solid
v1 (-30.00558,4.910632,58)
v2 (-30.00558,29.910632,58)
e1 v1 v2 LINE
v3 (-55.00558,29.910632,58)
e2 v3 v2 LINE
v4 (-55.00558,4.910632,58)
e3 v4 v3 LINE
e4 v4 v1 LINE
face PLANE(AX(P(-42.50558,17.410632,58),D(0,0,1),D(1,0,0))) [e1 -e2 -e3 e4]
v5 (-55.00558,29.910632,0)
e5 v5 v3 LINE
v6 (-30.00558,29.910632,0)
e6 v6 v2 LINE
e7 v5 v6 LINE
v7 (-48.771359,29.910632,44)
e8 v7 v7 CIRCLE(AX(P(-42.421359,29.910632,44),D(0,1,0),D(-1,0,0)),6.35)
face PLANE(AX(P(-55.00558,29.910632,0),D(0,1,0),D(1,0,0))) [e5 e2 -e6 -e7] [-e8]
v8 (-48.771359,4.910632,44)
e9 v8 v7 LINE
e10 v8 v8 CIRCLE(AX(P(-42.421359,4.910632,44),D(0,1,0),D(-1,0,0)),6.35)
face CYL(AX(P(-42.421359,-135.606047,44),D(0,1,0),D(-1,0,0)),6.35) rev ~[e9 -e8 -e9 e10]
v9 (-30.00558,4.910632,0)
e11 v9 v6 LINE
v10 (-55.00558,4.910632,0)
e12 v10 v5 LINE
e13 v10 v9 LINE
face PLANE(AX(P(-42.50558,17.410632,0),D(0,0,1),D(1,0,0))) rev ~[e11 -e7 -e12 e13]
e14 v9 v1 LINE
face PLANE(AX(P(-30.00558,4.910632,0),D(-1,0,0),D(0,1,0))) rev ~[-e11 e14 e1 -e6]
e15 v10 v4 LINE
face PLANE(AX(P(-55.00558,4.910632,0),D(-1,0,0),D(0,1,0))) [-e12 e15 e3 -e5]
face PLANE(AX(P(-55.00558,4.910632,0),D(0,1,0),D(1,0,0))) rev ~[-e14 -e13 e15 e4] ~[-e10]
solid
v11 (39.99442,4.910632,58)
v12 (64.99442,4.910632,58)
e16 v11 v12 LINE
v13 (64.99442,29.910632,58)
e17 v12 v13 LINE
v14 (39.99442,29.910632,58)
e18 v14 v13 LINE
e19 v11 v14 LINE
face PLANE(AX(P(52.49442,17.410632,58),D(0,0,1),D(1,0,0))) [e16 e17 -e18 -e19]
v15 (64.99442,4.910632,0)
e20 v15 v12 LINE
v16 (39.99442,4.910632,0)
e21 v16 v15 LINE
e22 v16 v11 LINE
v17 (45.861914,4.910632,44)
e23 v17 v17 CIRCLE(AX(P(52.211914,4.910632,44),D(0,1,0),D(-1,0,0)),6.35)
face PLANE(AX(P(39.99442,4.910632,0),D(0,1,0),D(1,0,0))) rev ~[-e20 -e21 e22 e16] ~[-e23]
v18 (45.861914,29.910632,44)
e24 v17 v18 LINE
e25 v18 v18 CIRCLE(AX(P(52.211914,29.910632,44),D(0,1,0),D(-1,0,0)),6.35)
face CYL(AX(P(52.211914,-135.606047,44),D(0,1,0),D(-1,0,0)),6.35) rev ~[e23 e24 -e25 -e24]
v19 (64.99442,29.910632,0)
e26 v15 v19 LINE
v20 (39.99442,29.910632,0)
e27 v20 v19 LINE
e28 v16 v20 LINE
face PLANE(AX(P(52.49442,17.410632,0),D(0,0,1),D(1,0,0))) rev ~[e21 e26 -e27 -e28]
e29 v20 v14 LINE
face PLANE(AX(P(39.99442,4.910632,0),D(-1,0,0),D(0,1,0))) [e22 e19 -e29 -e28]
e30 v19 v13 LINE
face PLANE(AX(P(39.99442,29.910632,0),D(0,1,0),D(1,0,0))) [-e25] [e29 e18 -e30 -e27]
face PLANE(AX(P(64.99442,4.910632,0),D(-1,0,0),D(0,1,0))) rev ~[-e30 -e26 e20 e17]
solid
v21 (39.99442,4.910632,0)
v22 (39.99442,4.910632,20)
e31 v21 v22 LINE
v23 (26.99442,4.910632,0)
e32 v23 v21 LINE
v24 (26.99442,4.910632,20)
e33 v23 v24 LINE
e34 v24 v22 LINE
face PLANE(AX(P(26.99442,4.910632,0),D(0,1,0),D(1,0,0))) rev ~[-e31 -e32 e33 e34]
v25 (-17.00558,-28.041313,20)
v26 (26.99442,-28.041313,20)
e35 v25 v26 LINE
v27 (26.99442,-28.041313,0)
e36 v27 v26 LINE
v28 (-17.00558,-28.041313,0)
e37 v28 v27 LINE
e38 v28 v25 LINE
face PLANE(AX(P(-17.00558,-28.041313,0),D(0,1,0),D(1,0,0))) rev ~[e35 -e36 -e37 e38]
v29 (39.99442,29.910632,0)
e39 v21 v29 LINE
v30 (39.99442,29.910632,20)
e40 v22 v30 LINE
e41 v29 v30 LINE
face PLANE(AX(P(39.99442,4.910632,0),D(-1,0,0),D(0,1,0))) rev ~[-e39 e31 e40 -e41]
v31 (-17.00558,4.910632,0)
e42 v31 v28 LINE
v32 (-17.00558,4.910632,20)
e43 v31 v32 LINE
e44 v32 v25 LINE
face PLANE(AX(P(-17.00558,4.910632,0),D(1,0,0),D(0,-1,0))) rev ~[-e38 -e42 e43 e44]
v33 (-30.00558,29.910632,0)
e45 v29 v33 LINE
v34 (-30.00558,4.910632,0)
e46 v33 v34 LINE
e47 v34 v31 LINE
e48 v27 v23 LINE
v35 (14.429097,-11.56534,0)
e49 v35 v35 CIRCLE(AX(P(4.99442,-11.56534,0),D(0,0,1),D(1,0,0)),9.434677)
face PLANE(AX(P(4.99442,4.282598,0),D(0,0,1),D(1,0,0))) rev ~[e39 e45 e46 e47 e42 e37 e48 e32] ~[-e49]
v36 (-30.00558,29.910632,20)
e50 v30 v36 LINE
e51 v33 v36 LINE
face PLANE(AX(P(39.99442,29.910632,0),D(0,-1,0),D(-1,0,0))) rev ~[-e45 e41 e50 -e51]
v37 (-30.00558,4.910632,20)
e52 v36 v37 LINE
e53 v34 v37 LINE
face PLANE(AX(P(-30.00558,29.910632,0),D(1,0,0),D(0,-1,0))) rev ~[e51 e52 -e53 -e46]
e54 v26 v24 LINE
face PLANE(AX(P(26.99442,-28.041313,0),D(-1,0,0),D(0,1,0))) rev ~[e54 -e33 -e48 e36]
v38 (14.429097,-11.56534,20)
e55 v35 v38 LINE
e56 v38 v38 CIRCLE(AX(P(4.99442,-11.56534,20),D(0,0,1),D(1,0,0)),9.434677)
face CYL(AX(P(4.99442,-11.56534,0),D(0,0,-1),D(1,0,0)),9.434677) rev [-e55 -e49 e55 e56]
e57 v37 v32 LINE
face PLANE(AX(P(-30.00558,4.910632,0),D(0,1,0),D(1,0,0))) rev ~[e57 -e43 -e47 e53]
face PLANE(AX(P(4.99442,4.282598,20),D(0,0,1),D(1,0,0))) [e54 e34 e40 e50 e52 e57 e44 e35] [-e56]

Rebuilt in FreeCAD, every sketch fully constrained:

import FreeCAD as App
import Part
import Sketcher

doc = App.newDocument("Part")
body = doc.addObject("PartDesign::Body", "Body")
body.AllowCompound = True

sketch1 = body.newObject("Sketcher::SketchObject", "Sketch")
sketch1.AttachmentSupport = (doc.getObject("XY_Plane"), [""])
sketch1.MapMode = "FlatFace"
sketch1.addGeometry([
    Part.LineSegment(App.Vector(-55, 30, 0), App.Vector(-55, 5, 0)),
    Part.LineSegment(App.Vector(-55, 5, 0), App.Vector(-30, 5, 0)),
    Part.LineSegment(App.Vector(-30, 5, 0), App.Vector(-30, 30, 0)),
    Part.LineSegment(App.Vector(-30, 30, 0), App.Vector(-55, 30, 0)),
    Part.LineSegment(App.Vector(40, 30, 0), App.Vector(40, 5, 0)),
    Part.LineSegment(App.Vector(40, 5, 0), App.Vector(65, 5, 0)),
    Part.LineSegment(App.Vector(65, 5, 0), App.Vector(65, 30, 0)),
    Part.LineSegment(App.Vector(65, 30, 0), App.Vector(40, 30, 0)),
], False)
sketch1.addConstraint([
    Sketcher.Constraint("Coincident", 0, 2, 1, 1),
    Sketcher.Constraint("Coincident", 1, 2, 2, 1),
    Sketcher.Constraint("Coincident", 2, 2, 3, 1),
    Sketcher.Constraint("Coincident", 3, 2, 0, 1),
    Sketcher.Constraint("Coincident", 4, 2, 5, 1),
    Sketcher.Constraint("Coincident", 5, 2, 6, 1),
    Sketcher.Constraint("Coincident", 6, 2, 7, 1),
    Sketcher.Constraint("Coincident", 7, 2, 4, 1),
    Sketcher.Constraint("Vertical", 0),
    Sketcher.Constraint("Horizontal", 1),
    Sketcher.Constraint("Vertical", 2),
    Sketcher.Constraint("Horizontal", 3),
    Sketcher.Constraint("Vertical", 4),
    Sketcher.Constraint("Horizontal", 5),
    Sketcher.Constraint("Vertical", 6),
    Sketcher.Constraint("Horizontal", 7),
    Sketcher.Constraint("Horizontal", 1, 2, 4, 2),
    Sketcher.Constraint("Horizontal", 3, 2, 6, 2),
    Sketcher.Constraint("Equal", 3, 5),
    Sketcher.Constraint("Equal", 7, 0),
    Sketcher.Constraint("DistanceX", 1, 1, 1, 2, 25.0),
    Sketcher.Constraint("DistanceX", 1, 2, 4, 2, 70.0),
    Sketcher.Constraint("DistanceX", 0, 2, -1, 1, 55.00558),
    Sketcher.Constraint("DistanceY", -1, 1, 0, 2, 4.910632),
])
pad1 = body.newObject("PartDesign::Pad", "Pad")
pad1.Profile = sketch1
pad1.Length = 58

sketch2 = body.newObject("Sketcher::SketchObject", "Sketch001")
sketch2.AttachmentSupport = (doc.getObject("XZ_Plane"), [""])
sketch2.MapMode = "FlatFace"
sketch2.addGeometry([
    Part.Circle(App.Vector(-42, 44, 0), App.Vector(0, 0, 1), 6),
    Part.Circle(App.Vector(52, 44, 0), App.Vector(0, 0, 1), 6),
], False)
sketch2.addConstraint([
    Sketcher.Constraint("Equal", 0, 1),
    Sketcher.Constraint("Horizontal", 0, 3, 1, 3),
    Sketcher.Constraint("Diameter", 0, 12.7),
    Sketcher.Constraint("DistanceY", -1, 1, 0, 3, 44.0),
    Sketcher.Constraint("DistanceX", 0, 3, -1, 1, 42.421359),
    Sketcher.Constraint("DistanceX", -1, 1, 1, 3, 52.211914),
])
doc.recompute()
hole = body.newObject("PartDesign::Hole", "Hole")
hole.Profile = sketch2
hole.ThreadType = "None"
hole.Diameter = 12.7
hole.DepthType = "ThroughAll"
body2 = doc.addObject("PartDesign::Body", "Body001")

sketch3 = body2.newObject("Sketcher::SketchObject", "Sketch002")
sketch3.AttachmentSupport = (doc.getObject("XY_Plane001"), [""])
sketch3.MapMode = "FlatFace"
sketch3.addGeometry([
    Part.LineSegment(App.Vector(40, 30, 0), App.Vector(-30, 30, 0)),
    Part.LineSegment(App.Vector(-30, 30, 0), App.Vector(-30, 5, 0)),
    Part.LineSegment(App.Vector(-30, 5, 0), App.Vector(-17, 5, 0)),
    Part.LineSegment(App.Vector(-17, 5, 0), App.Vector(-17, -28, 0)),
    Part.LineSegment(App.Vector(-17, -28, 0), App.Vector(27, -28, 0)),
    Part.LineSegment(App.Vector(27, -28, 0), App.Vector(27, 5, 0)),
    Part.LineSegment(App.Vector(27, 5, 0), App.Vector(40, 5, 0)),
    Part.LineSegment(App.Vector(40, 5, 0), App.Vector(40, 30, 0)),
    Part.Circle(App.Vector(5, -12, 0), App.Vector(0, 0, 1), 9),
], False)
sketch3.addConstraint([
    Sketcher.Constraint("Coincident", 0, 2, 1, 1),
    Sketcher.Constraint("Coincident", 1, 2, 2, 1),
    Sketcher.Constraint("Coincident", 2, 2, 3, 1),
    Sketcher.Constraint("Coincident", 3, 2, 4, 1),
    Sketcher.Constraint("Coincident", 4, 2, 5, 1),
    Sketcher.Constraint("Coincident", 5, 2, 6, 1),
    Sketcher.Constraint("Coincident", 6, 2, 7, 1),
    Sketcher.Constraint("Coincident", 7, 2, 0, 1),
    Sketcher.Constraint("Horizontal", 0),
    Sketcher.Constraint("Vertical", 1),
    Sketcher.Constraint("Horizontal", 2),
    Sketcher.Constraint("Vertical", 3),
    Sketcher.Constraint("Horizontal", 4),
    Sketcher.Constraint("Vertical", 5),
    Sketcher.Constraint("Horizontal", 6),
    Sketcher.Constraint("Vertical", 7),
    Sketcher.Constraint("Horizontal", 2, 2, 5, 2),
    Sketcher.Constraint("Equal", 2, 6),
    Sketcher.Constraint("DistanceX", 0, 2, 0, 1, 70.0),
    Sketcher.Constraint("DistanceX", 2, 1, 2, 2, 13.0),
    Sketcher.Constraint("DistanceY", 1, 2, 1, 1, 25.0),
    Sketcher.Constraint("DistanceX", 0, 2, 8, 3, 35.0),
    Sketcher.Constraint("Diameter", 8, 18.869354),
    Sketcher.Constraint("DistanceY", 3, 2, 3, 1, 32.951945),
    Sketcher.Constraint("DistanceX", -1, 1, 8, 3, 4.99442),
    Sketcher.Constraint("DistanceY", 8, 3, -1, 1, 11.56534),
    Sketcher.Constraint("DistanceY", -1, 1, 0, 2, 29.910632),
])
pad2 = body2.newObject("PartDesign::Pad", "Pad001")
pad2.Profile = sketch3
pad2.Length = 20

doc.recompute()
